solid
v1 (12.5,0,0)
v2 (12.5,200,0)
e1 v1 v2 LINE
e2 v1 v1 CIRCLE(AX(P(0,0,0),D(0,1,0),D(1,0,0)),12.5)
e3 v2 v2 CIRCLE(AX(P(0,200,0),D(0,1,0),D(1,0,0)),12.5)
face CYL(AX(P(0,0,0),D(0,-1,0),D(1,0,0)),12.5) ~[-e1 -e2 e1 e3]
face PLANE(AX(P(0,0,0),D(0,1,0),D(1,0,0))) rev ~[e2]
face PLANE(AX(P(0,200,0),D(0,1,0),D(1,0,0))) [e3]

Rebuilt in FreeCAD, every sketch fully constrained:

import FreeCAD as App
import Part
import Sketcher
from FreeCAD import Vector
Q = App.Units.Quantity

doc = App.newDocument("Part")
params = doc.addObject("Spreadsheet::Sheet", "Params")
for row, (alias, value) in enumerate([
    ("sketch1_diameter", "25 mm"),
    ("pad1_length", "200 mm"),
], start=1):
    params.set(f"A{row}", alias)
    params.set(f"B{row}", "=" + value)
    params.setAlias(f"B{row}", alias)

body = doc.addObject("PartDesign::Body", "Body")

sketch1 = body.newObject("Sketcher::SketchObject", "Sketch")
sketch1.AttachmentSupport = (doc.getObject("XZ_Plane"), [""])
sketch1.MapMode = "FlatFace"
sketch1.addGeometry(Part.Circle(Vector(0, 0, 0), Vector(0, 0, 1), 12.5), False)
sketch1.addConstraint([
    Sketcher.Constraint("Coincident", 0, 3, -1, 1),
    Sketcher.Constraint("Diameter", 0, Q("25 mm")),
])
sketch1.setExpression("Constraints[1]", "Params.sketch1_diameter")
pad1 = body.newObject("PartDesign::Pad", "Pad")
pad1.Profile = sketch1
pad1.setExpression("Length", "Params.pad1_length")
pad1.Reversed = True

doc.recompute()
